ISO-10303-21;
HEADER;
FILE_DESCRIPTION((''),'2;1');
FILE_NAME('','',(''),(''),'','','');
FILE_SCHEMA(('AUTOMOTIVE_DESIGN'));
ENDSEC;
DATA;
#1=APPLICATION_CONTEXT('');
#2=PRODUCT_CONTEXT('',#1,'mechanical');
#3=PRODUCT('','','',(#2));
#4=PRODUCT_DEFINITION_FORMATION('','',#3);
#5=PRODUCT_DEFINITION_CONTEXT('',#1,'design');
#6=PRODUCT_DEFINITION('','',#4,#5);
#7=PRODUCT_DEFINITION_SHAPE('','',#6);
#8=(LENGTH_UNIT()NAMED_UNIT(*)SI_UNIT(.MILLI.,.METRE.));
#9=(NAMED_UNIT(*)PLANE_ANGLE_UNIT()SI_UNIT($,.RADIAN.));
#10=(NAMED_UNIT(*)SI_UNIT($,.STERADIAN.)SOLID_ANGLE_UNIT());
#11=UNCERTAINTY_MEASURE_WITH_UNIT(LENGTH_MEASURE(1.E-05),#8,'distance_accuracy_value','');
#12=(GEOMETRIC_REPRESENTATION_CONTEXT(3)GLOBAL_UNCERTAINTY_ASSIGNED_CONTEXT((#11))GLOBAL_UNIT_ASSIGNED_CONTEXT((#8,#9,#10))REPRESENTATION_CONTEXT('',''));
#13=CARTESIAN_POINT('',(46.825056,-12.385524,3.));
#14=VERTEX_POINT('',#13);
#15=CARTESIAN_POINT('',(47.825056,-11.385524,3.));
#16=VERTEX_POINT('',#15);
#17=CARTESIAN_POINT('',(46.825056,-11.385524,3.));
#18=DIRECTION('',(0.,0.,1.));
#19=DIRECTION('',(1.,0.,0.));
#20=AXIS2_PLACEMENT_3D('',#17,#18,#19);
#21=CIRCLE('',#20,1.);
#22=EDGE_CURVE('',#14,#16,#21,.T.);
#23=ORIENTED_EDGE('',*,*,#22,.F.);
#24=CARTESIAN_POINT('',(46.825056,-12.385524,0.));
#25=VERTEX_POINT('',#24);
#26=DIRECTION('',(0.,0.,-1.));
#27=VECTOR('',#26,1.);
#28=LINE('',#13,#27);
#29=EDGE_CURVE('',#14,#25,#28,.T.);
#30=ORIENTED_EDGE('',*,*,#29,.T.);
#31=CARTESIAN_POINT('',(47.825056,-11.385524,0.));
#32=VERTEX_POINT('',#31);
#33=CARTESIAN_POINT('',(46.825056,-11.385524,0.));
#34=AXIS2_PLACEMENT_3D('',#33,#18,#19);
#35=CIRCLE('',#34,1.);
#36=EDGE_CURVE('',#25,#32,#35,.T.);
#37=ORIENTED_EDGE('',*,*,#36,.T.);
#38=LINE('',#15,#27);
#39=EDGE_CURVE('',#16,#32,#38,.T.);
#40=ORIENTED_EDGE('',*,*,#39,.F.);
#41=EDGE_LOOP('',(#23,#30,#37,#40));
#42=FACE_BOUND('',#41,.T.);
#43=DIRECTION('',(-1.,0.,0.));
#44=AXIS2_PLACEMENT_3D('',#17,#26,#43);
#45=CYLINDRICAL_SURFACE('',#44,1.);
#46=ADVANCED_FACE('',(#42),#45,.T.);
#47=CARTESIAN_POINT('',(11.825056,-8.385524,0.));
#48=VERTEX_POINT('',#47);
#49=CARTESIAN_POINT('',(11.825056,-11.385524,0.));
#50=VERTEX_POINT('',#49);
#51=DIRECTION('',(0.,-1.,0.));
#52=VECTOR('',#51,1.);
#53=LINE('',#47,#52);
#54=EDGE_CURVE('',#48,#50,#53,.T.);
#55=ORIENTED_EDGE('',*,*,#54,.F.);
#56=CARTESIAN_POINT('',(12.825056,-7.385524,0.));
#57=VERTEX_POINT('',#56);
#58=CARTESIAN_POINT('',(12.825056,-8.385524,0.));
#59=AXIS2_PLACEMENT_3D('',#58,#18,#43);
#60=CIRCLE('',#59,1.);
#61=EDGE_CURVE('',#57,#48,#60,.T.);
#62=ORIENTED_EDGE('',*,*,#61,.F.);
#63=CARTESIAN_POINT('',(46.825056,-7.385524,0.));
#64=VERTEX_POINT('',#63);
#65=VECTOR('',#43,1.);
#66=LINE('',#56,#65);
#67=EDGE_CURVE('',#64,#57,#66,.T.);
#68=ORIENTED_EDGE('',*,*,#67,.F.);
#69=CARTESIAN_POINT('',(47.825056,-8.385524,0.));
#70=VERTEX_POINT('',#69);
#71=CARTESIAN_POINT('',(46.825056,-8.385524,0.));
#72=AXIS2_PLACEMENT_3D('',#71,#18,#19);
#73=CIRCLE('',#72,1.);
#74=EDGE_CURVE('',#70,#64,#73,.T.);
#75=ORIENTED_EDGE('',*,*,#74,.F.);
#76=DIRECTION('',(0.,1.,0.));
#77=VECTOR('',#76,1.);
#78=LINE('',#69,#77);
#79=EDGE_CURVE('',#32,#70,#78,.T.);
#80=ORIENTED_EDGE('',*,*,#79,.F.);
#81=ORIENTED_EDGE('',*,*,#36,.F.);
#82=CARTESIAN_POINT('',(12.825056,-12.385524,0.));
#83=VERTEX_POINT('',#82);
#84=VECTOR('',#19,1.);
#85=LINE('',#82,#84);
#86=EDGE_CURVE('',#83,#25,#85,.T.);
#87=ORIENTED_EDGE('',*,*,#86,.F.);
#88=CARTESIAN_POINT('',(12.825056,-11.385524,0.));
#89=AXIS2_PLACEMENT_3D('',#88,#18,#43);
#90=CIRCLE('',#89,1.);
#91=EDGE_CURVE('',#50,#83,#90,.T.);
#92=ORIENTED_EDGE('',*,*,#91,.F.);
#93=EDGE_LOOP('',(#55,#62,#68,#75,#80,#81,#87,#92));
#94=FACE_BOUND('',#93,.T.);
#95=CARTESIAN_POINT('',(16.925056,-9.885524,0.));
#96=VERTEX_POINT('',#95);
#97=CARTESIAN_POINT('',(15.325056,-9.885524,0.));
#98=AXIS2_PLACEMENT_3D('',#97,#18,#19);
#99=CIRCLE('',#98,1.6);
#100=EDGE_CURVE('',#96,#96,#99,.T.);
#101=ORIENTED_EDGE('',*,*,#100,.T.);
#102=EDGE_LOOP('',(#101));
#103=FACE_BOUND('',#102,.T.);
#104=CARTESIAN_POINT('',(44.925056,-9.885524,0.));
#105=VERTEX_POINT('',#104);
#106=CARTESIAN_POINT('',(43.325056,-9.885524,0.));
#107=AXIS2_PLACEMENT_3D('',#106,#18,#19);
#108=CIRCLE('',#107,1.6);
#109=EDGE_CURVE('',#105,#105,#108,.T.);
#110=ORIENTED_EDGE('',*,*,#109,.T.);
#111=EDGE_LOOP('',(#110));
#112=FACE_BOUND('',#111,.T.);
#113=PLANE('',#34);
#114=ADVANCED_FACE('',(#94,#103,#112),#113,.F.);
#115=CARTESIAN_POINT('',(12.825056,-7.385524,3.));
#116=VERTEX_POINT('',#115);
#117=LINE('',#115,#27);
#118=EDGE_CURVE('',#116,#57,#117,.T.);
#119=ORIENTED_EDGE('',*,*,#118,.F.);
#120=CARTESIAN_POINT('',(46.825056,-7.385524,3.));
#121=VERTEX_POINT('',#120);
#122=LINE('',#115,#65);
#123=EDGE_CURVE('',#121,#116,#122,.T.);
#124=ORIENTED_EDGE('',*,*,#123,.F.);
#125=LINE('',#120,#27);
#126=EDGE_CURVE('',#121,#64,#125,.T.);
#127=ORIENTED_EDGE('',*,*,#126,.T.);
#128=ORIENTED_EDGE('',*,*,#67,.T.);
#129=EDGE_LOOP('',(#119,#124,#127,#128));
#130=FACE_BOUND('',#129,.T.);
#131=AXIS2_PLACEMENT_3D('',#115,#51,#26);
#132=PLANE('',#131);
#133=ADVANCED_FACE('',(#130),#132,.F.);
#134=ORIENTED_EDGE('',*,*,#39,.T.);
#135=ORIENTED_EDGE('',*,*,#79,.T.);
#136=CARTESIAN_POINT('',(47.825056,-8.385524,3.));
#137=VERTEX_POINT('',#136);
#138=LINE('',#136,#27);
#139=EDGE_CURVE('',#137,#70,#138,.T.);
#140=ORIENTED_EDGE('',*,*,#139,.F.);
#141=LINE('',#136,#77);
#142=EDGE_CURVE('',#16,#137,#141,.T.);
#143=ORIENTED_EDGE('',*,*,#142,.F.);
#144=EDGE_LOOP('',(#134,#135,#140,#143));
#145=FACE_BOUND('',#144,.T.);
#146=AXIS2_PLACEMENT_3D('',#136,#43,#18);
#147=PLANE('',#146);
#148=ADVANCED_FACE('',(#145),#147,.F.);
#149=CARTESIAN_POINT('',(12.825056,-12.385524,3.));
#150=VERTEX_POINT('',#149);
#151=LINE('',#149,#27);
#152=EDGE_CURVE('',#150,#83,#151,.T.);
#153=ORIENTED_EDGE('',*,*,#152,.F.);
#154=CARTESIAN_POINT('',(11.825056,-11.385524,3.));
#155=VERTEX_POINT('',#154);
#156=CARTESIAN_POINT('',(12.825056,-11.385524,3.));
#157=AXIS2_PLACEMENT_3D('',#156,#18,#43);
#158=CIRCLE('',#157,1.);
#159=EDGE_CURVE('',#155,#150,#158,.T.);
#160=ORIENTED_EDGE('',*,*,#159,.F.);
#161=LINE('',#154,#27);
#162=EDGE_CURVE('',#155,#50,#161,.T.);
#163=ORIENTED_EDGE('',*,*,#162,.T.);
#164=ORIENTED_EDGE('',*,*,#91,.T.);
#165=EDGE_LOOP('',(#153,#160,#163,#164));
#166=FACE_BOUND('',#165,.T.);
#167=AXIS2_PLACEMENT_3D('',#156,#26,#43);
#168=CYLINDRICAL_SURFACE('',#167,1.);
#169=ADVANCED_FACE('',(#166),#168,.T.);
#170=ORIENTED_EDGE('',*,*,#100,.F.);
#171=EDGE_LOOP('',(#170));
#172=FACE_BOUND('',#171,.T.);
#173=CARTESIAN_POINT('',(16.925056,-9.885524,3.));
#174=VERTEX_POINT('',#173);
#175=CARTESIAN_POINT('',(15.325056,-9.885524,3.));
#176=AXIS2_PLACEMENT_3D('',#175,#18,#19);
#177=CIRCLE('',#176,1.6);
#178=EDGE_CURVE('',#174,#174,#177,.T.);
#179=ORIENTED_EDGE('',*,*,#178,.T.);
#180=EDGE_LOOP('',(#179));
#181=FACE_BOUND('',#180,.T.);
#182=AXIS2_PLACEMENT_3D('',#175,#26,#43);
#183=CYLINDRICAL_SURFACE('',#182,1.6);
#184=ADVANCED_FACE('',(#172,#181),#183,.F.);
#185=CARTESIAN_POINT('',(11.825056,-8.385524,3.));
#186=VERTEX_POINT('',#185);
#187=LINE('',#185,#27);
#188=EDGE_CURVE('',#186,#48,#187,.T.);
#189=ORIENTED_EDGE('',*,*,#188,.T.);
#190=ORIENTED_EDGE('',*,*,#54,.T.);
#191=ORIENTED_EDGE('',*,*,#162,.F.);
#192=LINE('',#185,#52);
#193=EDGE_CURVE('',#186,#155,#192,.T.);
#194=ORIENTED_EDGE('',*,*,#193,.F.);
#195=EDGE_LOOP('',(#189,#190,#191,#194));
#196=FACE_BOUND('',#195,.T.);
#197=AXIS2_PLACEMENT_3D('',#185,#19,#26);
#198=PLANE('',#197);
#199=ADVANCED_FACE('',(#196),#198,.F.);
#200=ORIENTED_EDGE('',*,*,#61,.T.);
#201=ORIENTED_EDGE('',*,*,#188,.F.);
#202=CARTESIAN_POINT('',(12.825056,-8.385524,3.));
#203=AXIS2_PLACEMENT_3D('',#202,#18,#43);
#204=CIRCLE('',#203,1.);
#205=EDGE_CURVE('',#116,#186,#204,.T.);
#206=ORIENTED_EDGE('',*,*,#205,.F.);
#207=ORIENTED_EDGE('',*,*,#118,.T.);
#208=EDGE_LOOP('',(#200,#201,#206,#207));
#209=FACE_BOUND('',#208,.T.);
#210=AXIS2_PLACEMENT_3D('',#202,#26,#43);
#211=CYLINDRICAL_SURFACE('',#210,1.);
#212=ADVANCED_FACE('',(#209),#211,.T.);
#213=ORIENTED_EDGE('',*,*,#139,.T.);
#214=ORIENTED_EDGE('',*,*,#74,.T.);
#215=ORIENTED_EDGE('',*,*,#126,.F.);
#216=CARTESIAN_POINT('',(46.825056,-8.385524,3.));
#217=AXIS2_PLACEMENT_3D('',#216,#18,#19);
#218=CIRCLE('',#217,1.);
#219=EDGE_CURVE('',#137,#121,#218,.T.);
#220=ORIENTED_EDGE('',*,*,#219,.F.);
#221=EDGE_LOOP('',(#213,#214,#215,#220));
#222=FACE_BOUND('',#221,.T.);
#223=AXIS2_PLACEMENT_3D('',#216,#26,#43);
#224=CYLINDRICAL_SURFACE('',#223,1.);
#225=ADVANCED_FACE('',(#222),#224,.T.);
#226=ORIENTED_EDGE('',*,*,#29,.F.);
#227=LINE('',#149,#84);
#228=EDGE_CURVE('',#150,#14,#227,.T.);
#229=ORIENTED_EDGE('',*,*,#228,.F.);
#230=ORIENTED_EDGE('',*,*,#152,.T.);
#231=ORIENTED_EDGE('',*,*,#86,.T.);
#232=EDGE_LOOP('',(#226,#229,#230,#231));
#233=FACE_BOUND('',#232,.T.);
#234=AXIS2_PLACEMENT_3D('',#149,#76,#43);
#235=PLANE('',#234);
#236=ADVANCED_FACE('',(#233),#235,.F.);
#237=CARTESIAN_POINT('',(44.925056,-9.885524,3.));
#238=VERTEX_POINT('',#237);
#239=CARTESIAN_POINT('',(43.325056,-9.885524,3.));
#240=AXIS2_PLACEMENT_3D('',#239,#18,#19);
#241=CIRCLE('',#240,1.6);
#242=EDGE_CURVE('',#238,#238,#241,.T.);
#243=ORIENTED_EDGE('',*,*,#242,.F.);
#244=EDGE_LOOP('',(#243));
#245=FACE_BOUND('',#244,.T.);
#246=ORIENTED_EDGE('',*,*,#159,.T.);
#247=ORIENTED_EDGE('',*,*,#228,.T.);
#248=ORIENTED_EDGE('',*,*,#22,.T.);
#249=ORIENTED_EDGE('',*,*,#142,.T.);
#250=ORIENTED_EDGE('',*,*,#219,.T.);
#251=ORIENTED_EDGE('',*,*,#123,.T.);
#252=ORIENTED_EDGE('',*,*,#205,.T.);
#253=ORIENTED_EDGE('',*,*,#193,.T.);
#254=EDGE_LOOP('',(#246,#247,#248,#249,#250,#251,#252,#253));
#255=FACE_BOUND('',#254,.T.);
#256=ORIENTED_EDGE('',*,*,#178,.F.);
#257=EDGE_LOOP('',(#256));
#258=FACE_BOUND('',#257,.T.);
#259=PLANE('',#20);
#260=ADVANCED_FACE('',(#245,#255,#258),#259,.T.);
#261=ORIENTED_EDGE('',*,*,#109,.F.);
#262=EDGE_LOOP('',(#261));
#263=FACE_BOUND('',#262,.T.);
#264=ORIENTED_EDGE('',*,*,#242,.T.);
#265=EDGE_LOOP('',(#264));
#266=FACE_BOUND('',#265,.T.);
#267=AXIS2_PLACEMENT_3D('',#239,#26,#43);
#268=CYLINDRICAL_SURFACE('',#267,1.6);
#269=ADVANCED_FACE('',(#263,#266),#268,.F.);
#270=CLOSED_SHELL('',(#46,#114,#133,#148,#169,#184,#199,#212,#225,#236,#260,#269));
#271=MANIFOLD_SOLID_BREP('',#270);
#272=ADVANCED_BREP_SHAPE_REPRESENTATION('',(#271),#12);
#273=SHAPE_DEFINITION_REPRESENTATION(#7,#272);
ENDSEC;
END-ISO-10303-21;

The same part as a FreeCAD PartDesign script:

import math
import FreeCAD as App
import Part
import Sketcher

doc = App.newDocument("Part")
params = doc.addObject("Spreadsheet::Sheet", "Params")
for row, (alias, value) in enumerate([
    ("sketch1_radius", "1 mm"),
    ("sketch1_diameter", "3.2 mm"),
    ("sketch1_width", "34 mm"),
    ("sketch1_height", "3 mm"),
    ("pad1_length", "3 mm"),
], start=1):
    params.set(f"A{row}", alias)
    params.set(f"B{row}", "=" + value)
    params.setAlias(f"B{row}", alias)

body = doc.addObject("PartDesign::Body", "Body")

# Sketch on XY plane
sketch1 = body.newObject("Sketcher::SketchObject", "Sketch")
sketch1.AttachmentSupport = (doc.getObject("XY_Plane"), [""])
sketch1.MapMode = "FlatFace"
sketch1.addGeometry(Part.LineSegment(App.Vector(46.8, -7.4, 0), App.Vector(12.8, -7.4, 0)), False)
sketch1.addGeometry(Part.ArcOfCircle(Part.Circle(App.Vector(12.8, -8.4, 0), App.Vector(0, 0, 1), 1), math.radians(90), math.radians(180)), False)
sketch1.addGeometry(Part.LineSegment(App.Vector(11.8, -8.4, 0), App.Vector(11.8, -11.4, 0)), False)
sketch1.addGeometry(Part.ArcOfCircle(Part.Circle(App.Vector(12.8, -11.4, 0), App.Vector(0, 0, 1), 1), math.radians(-180), math.radians(-90)), False)
sketch1.addGeometry(Part.LineSegment(App.Vector(12.8, -12.4, 0), App.Vector(46.8, -12.4, 0)), False)
sketch1.addGeometry(Part.ArcOfCircle(Part.Circle(App.Vector(46.8, -11.4, 0), App.Vector(0, 0, 1), 1), math.radians(-90), math.radians(0)), False)
sketch1.addGeometry(Part.LineSegment(App.Vector(47.8, -11.4, 0), App.Vector(47.8, -8.4, 0)), False)
sketch1.addGeometry(Part.ArcOfCircle(Part.Circle(App.Vector(46.8, -8.4, 0), App.Vector(0, 0, 1), 1), math.radians(0), math.radians(90)), False)
sketch1.addGeometry(Part.Circle(App.Vector(43.3, -9.9, 0), App.Vector(0, 0, 1), 1.6), False)
sketch1.addGeometry(Part.Circle(App.Vector(15.3, -9.9, 0), App.Vector(0, 0, 1), 1.6), False)
sketch1.addConstraint(Sketcher.Constraint("Tangent", 0, 2, 1, 1))
sketch1.addConstraint(Sketcher.Constraint("Tangent", 1, 2, 2, 1))
sketch1.addConstraint(Sketcher.Constraint("Tangent", 2, 2, 3, 1))
sketch1.addConstraint(Sketcher.Constraint("Tangent", 3, 2, 4, 1))
sketch1.addConstraint(Sketcher.Constraint("Tangent", 4, 2, 5, 1))
sketch1.addConstraint(Sketcher.Constraint("Tangent", 5, 2, 6, 1))
sketch1.addConstraint(Sketcher.Constraint("Tangent", 6, 2, 7, 1))
sketch1.addConstraint(Sketcher.Constraint("Tangent", 7, 2, 0, 1))
sketch1.addConstraint(Sketcher.Constraint("Horizontal", 0))
sketch1.addConstraint(Sketcher.Constraint("Vertical", 2))
sketch1.addConstraint(Sketcher.Constraint("Horizontal", 4))
sketch1.addConstraint(Sketcher.Constraint("Vertical", 6))
sketch1.addConstraint(Sketcher.Constraint("Equal", 1, 3))
sketch1.addConstraint(Sketcher.Constraint("Equal", 3, 5))
sketch1.addConstraint(Sketcher.Constraint("Equal", 5, 7))
sketch1.addConstraint(Sketcher.Constraint("Equal", 8, 9))
sketch1.addConstraint(Sketcher.Constraint("Horizontal", 8, 3, 9, 3))
sketch1.addConstraint(Sketcher.Constraint("Radius", 1, 1.0))
sketch1.addConstraint(Sketcher.Constraint("Diameter", 8, 3.2))
sketch1.addConstraint(Sketcher.Constraint("DistanceX", 0, 2, 0, 1, 34.0))
sketch1.addConstraint(Sketcher.Constraint("DistanceY", 2, 2, 2, 1, 3.0))
sketch1.addConstraint(Sketcher.Constraint("DistanceX", 9, 3, 8, 3, 28.0))
sketch1.addConstraint(Sketcher.Constraint("DistanceX", 8, 3, 5, 3, 3.5))
sketch1.addConstraint(Sketcher.Constraint("DistanceY", 5, 3, 8, 3, 1.5))
sketch1.addConstraint(Sketcher.Constraint("DistanceX", -1, 1, 1, 3, 12.825056))
sketch1.addConstraint(Sketcher.Constraint("DistanceY", 1, 3, -1, 1, 8.385524))
sketch1.setExpression("Constraints[17]", "Params.sketch1_radius")
sketch1.setExpression("Constraints[18]", "Params.sketch1_diameter")
sketch1.setExpression("Constraints[19]", "Params.sketch1_width")
sketch1.setExpression("Constraints[20]", "Params.sketch1_height")
pad1 = body.newObject("PartDesign::Pad", "Pad")
pad1.Profile = sketch1
pad1.setExpression("Length", "Params.pad1_length")

doc.recompute()
